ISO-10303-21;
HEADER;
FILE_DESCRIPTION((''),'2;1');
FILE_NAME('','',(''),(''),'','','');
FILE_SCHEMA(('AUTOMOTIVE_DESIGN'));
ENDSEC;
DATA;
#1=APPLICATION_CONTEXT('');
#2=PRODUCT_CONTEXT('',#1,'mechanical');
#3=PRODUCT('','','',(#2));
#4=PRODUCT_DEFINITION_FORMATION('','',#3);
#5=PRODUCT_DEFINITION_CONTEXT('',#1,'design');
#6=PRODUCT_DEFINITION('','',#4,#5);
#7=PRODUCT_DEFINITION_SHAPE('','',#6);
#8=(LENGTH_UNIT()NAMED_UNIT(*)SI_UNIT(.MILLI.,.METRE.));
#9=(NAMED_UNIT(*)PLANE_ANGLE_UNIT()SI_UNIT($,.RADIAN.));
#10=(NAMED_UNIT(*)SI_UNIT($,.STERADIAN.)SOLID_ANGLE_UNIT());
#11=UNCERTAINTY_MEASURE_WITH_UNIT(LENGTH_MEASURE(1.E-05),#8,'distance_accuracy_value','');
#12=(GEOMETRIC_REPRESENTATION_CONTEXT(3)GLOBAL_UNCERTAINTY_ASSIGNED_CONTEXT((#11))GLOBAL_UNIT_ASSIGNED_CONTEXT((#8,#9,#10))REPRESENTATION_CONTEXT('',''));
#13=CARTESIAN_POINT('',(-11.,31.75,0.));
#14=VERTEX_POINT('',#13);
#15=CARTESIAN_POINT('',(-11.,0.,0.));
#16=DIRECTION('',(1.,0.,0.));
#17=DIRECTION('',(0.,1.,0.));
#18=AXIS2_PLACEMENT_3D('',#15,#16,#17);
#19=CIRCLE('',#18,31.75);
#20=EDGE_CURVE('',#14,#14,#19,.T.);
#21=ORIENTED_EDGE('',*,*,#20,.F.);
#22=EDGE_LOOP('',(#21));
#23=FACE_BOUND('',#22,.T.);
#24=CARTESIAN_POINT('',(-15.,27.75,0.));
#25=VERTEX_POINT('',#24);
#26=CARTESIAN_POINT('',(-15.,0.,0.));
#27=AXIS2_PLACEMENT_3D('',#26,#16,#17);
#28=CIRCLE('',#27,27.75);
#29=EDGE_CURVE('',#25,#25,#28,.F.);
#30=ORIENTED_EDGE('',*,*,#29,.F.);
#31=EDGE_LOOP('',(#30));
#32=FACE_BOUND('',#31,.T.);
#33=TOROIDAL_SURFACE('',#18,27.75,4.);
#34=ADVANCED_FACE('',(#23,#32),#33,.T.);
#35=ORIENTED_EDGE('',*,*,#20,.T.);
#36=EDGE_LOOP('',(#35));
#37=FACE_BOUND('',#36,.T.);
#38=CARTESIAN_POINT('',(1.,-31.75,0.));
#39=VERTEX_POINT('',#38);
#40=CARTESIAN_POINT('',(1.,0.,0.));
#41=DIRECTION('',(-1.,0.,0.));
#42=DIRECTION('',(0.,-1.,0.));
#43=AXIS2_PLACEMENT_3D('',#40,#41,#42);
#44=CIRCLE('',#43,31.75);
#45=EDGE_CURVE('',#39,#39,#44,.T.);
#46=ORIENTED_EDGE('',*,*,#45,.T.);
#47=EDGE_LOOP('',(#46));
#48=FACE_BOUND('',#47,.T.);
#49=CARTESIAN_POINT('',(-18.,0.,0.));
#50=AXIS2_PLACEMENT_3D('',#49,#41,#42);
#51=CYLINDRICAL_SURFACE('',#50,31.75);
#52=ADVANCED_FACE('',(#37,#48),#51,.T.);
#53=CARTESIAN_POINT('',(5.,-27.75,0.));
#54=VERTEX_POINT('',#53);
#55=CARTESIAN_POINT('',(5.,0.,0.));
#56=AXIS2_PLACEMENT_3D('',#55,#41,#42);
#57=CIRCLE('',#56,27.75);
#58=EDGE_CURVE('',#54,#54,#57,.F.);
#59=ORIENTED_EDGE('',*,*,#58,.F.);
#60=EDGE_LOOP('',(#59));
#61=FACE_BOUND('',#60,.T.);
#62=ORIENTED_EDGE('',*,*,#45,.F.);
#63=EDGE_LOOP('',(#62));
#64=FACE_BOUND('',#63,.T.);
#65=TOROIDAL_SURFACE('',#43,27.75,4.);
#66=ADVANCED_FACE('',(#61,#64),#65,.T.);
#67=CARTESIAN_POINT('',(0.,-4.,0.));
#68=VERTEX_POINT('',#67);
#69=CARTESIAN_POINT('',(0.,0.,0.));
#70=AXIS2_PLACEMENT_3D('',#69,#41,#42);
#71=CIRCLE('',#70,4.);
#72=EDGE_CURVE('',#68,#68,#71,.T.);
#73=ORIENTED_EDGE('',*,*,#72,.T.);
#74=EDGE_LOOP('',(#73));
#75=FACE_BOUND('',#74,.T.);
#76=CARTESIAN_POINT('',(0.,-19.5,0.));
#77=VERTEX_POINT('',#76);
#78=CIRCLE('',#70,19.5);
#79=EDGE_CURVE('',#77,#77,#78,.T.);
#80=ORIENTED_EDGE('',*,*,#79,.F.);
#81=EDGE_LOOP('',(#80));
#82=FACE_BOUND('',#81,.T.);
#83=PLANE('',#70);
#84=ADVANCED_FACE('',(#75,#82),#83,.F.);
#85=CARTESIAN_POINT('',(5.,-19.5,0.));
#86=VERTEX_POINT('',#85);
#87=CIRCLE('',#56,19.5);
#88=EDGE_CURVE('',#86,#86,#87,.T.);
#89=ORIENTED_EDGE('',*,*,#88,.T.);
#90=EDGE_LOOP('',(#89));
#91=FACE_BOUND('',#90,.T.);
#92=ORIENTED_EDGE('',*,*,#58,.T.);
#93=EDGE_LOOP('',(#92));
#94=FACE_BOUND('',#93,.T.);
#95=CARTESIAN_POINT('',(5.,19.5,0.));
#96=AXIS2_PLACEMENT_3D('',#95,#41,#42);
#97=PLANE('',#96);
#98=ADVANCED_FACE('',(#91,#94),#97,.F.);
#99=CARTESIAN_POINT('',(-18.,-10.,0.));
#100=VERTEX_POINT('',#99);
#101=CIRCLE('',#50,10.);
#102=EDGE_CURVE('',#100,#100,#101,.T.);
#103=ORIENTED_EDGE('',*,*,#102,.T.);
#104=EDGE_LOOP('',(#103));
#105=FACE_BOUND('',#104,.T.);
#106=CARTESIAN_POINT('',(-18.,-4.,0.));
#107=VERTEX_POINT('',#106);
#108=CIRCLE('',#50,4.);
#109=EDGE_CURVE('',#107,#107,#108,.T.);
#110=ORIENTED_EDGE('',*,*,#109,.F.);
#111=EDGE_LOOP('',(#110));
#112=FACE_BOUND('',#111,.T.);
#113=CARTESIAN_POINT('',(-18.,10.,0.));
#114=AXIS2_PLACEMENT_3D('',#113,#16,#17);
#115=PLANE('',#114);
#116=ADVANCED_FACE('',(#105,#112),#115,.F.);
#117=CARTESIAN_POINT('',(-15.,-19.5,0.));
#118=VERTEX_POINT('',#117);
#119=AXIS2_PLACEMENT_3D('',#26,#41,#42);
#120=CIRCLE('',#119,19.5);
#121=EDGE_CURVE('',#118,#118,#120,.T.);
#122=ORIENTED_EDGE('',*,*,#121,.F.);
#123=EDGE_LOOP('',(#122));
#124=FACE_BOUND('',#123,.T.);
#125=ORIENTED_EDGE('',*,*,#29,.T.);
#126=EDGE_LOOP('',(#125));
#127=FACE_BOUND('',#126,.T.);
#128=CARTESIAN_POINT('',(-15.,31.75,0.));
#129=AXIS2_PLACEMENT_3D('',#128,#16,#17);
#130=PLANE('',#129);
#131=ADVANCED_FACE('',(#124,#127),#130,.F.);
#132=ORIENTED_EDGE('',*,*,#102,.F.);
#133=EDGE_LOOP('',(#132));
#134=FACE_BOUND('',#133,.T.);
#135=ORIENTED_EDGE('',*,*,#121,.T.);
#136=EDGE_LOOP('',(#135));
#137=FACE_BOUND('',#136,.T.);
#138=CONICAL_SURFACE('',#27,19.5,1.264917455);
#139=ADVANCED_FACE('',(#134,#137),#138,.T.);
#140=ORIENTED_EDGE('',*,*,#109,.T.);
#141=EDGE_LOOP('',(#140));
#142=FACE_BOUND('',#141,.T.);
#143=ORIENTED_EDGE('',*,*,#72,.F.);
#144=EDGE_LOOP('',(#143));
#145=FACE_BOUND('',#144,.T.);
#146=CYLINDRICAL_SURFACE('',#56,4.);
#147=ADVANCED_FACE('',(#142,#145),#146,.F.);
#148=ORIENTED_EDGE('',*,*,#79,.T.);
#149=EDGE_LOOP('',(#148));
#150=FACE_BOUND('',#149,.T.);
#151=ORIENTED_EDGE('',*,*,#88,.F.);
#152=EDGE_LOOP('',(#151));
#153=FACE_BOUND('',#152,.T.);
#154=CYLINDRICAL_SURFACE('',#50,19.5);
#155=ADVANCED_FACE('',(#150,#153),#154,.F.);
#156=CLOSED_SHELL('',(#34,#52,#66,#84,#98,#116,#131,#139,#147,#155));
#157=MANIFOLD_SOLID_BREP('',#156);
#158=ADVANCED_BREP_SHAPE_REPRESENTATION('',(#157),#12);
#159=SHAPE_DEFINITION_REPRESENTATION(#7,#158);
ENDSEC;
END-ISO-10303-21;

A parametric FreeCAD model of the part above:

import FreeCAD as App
import Part
import Sketcher

V = App.Vector
Q = App.Units.Quantity


def edges_at(feature, points):
    """Names of the edges that pass closest to the given points."""
    edges = feature.Shape.Edges
    near = lambda p: min(range(len(edges)), key=lambda i: edges[i].distToShape(Part.Vertex(*p))[0])
    return sorted({f"Edge{near(p) + 1}" for p in points})

doc = App.newDocument("Part")
body = doc.addObject("PartDesign::Body", "Body")

# Sketch on XY plane
sketch1 = body.newObject("Sketcher::SketchObject", "Sketch")
sketch1.AttachmentSupport = (doc.getObject("XY_Plane"), [""])
sketch1.MapMode = "FlatFace"
sketch1.addGeometry([
    Part.LineSegment(V(0, 0, 0), V(0, 20, 0)),  # 0
    Part.LineSegment(V(0, 20, 0), V(5, 20, 0)),  # 1
    Part.LineSegment(V(5, 20, 0), V(5, 32, 0)),  # 2
    Part.LineSegment(V(5, 32, 0), V(-15, 32, 0)),  # 3
    Part.LineSegment(V(-15, 32, 0), V(-15, 20, 0)),  # 4
    Part.LineSegment(V(-15, 20, 0), V(-18, 10, 0)),  # 5
    Part.LineSegment(V(-18, 10, 0), V(-18, 0, 0)),  # 6
    Part.LineSegment(V(-18, 0, 0), V(0, 0, 0)),  # 7
], False)
sketch1.addConstraint([
    Sketcher.Constraint("Coincident", 0, 2, 1, 1),
    Sketcher.Constraint("Coincident", 1, 2, 2, 1),
    Sketcher.Constraint("Coincident", 2, 2, 3, 1),
    Sketcher.Constraint("Coincident", 3, 2, 4, 1),
    Sketcher.Constraint("Coincident", 4, 2, 5, 1),
    Sketcher.Constraint("Coincident", 5, 2, 6, 1),
    Sketcher.Constraint("Coincident", 6, 2, 7, 1),
    Sketcher.Constraint("Coincident", 7, 2, 0, 1),
    Sketcher.Constraint("Vertical", 0),
    Sketcher.Constraint("Horizontal", 1),
    Sketcher.Constraint("Vertical", 2),
    Sketcher.Constraint("Horizontal", 3),
    Sketcher.Constraint("Vertical", 4),
    Sketcher.Constraint("Vertical", 6),
    Sketcher.Constraint("Horizontal", 7),
    Sketcher.Constraint("Coincident", 7, 2, -1, 1),
    Sketcher.Constraint("Horizontal", 1, 2, 4, 2),
    Sketcher.Constraint("DistanceX", 1, 1, 1, 2, Q("5 mm")),
    Sketcher.Constraint("DistanceX", 3, 2, 3, 1, Q("20 mm")),
    Sketcher.Constraint("DistanceX", 7, 1, 7, 2, Q("18 mm")),
    Sketcher.Constraint("DistanceY", 6, 2, 6, 1, Q("10 mm")),
    Sketcher.Constraint("DistanceY", 0, 1, 0, 2, Q("19.5 mm")),
    Sketcher.Constraint("DistanceY", 2, 1, 2, 2, Q("12.25 mm")),
])
revolution = body.newObject("PartDesign::Revolution", "Revolution")
revolution.Profile = sketch1
revolution.ReferenceAxis = (sketch1, ["H_Axis"])
revolution.Angle = 360

# Sketch on YZ plane
sketch2 = body.newObject("Sketcher::SketchObject", "Sketch001")
sketch2.AttachmentSupport = (doc.getObject("YZ_Plane"), [""])
sketch2.MapMode = "FlatFace"
sketch2.AttachmentOffset = App.Placement(V(0, 0, -18), App.Rotation())
sketch2.addGeometry(Part.Circle(V(0, 0, 0), V(0, 0, 1), 4), False)
sketch2.addConstraint([
    Sketcher.Constraint("Coincident", 0, 3, -1, 1),
    Sketcher.Constraint("Diameter", 0, Q("8 mm")),
])
pocket1 = body.newObject("PartDesign::Pocket", "Pocket")
pocket1.Profile = sketch2
pocket1.Type = "ThroughAll"
pocket1.Reversed = True
doc.recompute()

fillet = body.newObject("PartDesign::Fillet", "Fillet")
fillet.Base = (pocket1, edges_at(pocket1, [(-15, 31.75, 0), (5, 31.75, 0)]))
fillet.Radius = 4

doc.recompute()
